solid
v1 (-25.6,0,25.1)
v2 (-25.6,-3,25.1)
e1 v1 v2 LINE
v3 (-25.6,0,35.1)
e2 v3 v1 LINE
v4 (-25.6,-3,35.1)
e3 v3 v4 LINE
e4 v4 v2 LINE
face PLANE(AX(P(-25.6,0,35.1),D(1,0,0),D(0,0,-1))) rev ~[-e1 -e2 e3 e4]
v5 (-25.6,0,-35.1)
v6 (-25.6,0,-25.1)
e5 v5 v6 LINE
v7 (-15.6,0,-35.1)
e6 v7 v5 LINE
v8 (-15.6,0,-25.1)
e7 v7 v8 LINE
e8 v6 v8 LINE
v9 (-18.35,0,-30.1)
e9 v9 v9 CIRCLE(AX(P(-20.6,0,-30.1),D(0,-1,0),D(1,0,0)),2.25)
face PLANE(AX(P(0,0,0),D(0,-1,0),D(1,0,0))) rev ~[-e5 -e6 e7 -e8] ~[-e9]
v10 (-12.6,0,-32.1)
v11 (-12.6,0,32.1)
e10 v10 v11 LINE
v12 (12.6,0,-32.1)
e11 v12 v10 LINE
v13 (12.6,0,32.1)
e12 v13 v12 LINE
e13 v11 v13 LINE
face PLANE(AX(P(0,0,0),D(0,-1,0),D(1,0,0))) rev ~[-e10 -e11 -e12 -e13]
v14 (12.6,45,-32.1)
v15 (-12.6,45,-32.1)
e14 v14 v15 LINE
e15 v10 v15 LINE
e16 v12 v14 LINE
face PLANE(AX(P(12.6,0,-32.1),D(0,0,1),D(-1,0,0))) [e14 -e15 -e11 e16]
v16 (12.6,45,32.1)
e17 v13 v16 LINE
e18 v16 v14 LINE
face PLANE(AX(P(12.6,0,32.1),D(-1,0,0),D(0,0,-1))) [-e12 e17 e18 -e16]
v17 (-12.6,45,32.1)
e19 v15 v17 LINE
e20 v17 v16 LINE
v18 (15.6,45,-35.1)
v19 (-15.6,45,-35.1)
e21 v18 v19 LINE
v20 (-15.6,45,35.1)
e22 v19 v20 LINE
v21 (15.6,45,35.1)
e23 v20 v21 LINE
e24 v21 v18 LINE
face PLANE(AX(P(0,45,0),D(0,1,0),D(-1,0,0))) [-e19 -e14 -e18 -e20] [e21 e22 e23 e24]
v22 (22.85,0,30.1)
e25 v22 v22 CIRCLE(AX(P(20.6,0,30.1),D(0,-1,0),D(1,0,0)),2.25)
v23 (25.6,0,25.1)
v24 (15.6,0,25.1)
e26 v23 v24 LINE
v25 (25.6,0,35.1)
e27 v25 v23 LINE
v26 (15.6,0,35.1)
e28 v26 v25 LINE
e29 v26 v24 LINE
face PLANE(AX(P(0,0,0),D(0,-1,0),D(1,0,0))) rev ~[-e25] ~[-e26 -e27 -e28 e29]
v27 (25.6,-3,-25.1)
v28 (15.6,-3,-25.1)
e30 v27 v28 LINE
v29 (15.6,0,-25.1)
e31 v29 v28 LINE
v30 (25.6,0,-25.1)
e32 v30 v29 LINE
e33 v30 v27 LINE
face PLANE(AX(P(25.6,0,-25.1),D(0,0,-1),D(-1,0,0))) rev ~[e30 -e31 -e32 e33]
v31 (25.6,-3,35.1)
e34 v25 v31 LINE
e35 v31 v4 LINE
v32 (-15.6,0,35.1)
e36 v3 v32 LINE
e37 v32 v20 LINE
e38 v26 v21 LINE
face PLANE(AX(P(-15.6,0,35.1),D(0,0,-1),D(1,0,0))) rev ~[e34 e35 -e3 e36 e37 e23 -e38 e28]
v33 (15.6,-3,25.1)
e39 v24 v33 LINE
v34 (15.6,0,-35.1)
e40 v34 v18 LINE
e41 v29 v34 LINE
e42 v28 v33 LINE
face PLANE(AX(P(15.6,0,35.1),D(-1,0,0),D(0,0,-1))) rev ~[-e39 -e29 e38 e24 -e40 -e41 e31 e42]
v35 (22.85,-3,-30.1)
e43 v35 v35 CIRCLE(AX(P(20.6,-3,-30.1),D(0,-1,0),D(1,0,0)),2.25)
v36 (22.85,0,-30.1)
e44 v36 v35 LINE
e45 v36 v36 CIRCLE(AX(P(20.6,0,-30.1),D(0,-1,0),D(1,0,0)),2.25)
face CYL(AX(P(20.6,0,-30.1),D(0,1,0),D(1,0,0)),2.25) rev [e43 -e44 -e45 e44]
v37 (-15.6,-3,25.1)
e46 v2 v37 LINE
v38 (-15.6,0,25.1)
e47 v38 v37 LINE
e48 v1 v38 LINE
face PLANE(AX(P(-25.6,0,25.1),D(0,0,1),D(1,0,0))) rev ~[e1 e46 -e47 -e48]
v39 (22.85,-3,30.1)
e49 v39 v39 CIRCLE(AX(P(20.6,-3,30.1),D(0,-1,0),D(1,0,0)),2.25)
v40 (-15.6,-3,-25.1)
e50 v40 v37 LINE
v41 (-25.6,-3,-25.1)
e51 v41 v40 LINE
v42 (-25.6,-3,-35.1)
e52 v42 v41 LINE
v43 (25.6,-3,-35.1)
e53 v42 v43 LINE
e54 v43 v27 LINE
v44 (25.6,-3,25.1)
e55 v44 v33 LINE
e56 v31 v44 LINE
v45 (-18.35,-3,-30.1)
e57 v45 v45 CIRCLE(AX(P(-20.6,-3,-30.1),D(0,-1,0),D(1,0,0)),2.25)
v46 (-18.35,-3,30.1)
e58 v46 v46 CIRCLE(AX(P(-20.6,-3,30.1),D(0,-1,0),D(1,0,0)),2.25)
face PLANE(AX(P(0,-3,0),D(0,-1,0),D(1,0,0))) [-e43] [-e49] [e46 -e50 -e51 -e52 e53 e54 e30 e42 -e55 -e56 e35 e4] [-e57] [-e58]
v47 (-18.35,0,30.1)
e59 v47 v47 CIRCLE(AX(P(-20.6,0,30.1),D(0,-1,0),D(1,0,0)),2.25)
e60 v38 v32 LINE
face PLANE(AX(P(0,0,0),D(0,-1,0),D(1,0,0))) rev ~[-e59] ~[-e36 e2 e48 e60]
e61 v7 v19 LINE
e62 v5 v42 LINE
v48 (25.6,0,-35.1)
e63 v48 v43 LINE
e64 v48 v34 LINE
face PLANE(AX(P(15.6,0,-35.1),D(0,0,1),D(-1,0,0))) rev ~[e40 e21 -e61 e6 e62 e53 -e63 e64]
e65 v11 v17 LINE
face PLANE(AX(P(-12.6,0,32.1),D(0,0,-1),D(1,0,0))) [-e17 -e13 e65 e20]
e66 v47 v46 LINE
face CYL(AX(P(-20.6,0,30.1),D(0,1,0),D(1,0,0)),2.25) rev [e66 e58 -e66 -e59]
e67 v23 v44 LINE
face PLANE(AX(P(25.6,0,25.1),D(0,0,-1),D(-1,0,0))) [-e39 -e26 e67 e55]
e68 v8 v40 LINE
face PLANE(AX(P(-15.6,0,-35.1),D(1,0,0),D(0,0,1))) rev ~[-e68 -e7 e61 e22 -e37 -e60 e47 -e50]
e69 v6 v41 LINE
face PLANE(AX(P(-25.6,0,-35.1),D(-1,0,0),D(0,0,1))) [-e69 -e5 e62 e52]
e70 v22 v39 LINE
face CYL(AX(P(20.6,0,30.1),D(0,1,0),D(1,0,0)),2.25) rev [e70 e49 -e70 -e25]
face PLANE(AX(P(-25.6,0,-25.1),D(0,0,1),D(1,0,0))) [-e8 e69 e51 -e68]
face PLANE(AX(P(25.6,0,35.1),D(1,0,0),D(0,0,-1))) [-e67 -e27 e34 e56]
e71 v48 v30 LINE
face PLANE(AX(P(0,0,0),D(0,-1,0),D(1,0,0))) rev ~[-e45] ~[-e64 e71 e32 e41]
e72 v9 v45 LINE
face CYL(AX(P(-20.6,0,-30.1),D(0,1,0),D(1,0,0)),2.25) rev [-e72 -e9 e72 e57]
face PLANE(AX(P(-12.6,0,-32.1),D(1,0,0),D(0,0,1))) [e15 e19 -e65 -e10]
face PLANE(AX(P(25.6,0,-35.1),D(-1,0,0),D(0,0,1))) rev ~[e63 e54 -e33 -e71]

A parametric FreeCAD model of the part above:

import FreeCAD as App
import Part
import Sketcher
Q = App.Units.Quantity

doc = App.newDocument("Part")
params = doc.addObject("Spreadsheet::Sheet", "Params")
for row, (alias, value) in enumerate([
    ("sketch1_width", "25.2 mm"),
    ("sketch1_height", "64.2 mm"),
    ("pad1_length", "45 mm"),
    ("sketch2_diameter", "4.5 mm"),
    ("sketch2_width", "10 mm"),
    ("sketch2_width2", "51.2 mm"),
    ("sketch2_height", "50.2 mm"),
    ("pad2_length", "3 mm"),
], start=1):
    params.set(f"A{row}", alias)
    params.set(f"B{row}", "=" + value)
    params.setAlias(f"B{row}", alias)

body = doc.addObject("PartDesign::Body", "Body")

sketch1 = body.newObject("Sketcher::SketchObject", "Sketch")
sketch1.AttachmentSupport = (doc.getObject("XZ_Plane"), [""])
sketch1.MapMode = "FlatFace"
sketch1.addGeometry(Part.LineSegment(App.Vector(-15.6, -35.1, 0), App.Vector(-15.6, 35.1, 0)), False)
sketch1.addGeometry(Part.LineSegment(App.Vector(-15.6, 35.1, 0), App.Vector(15.6, 35.1, 0)), False)
sketch1.addGeometry(Part.LineSegment(App.Vector(15.6, 35.1, 0), App.Vector(15.6, -35.1, 0)), False)
sketch1.addGeometry(Part.LineSegment(App.Vector(15.6, -35.1, 0), App.Vector(-15.6, -35.1, 0)), False)
sketch1.addGeometry(Part.LineSegment(App.Vector(12.6, 32.1, 0), App.Vector(-12.6, 32.1, 0)), False)
sketch1.addGeometry(Part.LineSegment(App.Vector(-12.6, 32.1, 0), App.Vector(-12.6, -32.1, 0)), False)
sketch1.addGeometry(Part.LineSegment(App.Vector(-12.6, -32.1, 0), App.Vector(12.6, -32.1, 0)), False)
sketch1.addGeometry(Part.LineSegment(App.Vector(12.6, -32.1, 0), App.Vector(12.6, 32.1, 0)), False)
sketch1.addConstraint(Sketcher.Constraint("Coincident", 0, 2, 1, 1))
sketch1.addConstraint(Sketcher.Constraint("Coincident", 1, 2, 2, 1))
sketch1.addConstraint(Sketcher.Constraint("Coincident", 2, 2, 3, 1))
sketch1.addConstraint(Sketcher.Constraint("Coincident", 3, 2, 0, 1))
sketch1.addConstraint(Sketcher.Constraint("Coincident", 4, 2, 5, 1))
sketch1.addConstraint(Sketcher.Constraint("Coincident", 5, 2, 6, 1))
sketch1.addConstraint(Sketcher.Constraint("Coincident", 6, 2, 7, 1))
sketch1.addConstraint(Sketcher.Constraint("Coincident", 7, 2, 4, 1))
sketch1.addConstraint(Sketcher.Constraint("Vertical", 0))
sketch1.addConstraint(Sketcher.Constraint("Horizontal", 1))
sketch1.addConstraint(Sketcher.Constraint("Vertical", 2))
sketch1.addConstraint(Sketcher.Constraint("Horizontal", 3))
sketch1.addConstraint(Sketcher.Constraint("Horizontal", 4))
sketch1.addConstraint(Sketcher.Constraint("Vertical", 5))
sketch1.addConstraint(Sketcher.Constraint("Horizontal", 6))
sketch1.addConstraint(Sketcher.Constraint("Vertical", 7))
sketch1.addConstraint(Sketcher.Constraint("Symmetric", 0, 2, 2, 2, -1, 1))
sketch1.addConstraint(Sketcher.Constraint("Symmetric", 4, 2, 6, 2, -1, 1))
sketch1.addConstraint(Sketcher.Constraint("DistanceX", 4, 2, 4, 1, Q("25.2 mm")))
sketch1.addConstraint(Sketcher.Constraint("DistanceY", 5, 2, 5, 1, Q("64.2 mm")))
sketch1.addConstraint(Sketcher.Constraint("DistanceX", 0, 2, 4, 2, Q("3 mm")))
sketch1.addConstraint(Sketcher.Constraint("DistanceY", 4, 2, 0, 2, Q("3 mm")))
sketch1.setExpression("Constraints[18]", "Params.sketch1_width")
sketch1.setExpression("Constraints[19]", "Params.sketch1_height")
pad1 = body.newObject("PartDesign::Pad", "Pad")
pad1.Profile = sketch1
pad1.setExpression("Length", "Params.pad1_length")
pad1.Reversed = True

sketch2 = body.newObject("Sketcher::SketchObject", "Sketch001")
sketch2.AttachmentSupport = (doc.getObject("XZ_Plane"), [""])
sketch2.MapMode = "FlatFace"
sketch2.addGeometry(Part.LineSegment(App.Vector(-25.6, 25.1, 0), App.Vector(-15.6, 25.1, 0)), False)
sketch2.addGeometry(Part.LineSegment(App.Vector(-15.6, 25.1, 0), App.Vector(-15.6, -25.1, 0)), False)
sketch2.addGeometry(Part.LineSegment(App.Vector(-15.6, -25.1, 0), App.Vector(-25.6, -25.1, 0)), False)
sketch2.addGeometry(Part.LineSegment(App.Vector(-25.6, -25.1, 0), App.Vector(-25.6, -35.1, 0)), False)
sketch2.addGeometry(Part.LineSegment(App.Vector(-25.6, -35.1, 0), App.Vector(25.6, -35.1, 0)), False)
sketch2.addGeometry(Part.LineSegment(App.Vector(25.6, -35.1, 0), App.Vector(25.6, -25.1, 0)), False)
sketch2.addGeometry(Part.LineSegment(App.Vector(25.6, -25.1, 0), App.Vector(15.6, -25.1, 0)), False)
sketch2.addGeometry(Part.LineSegment(App.Vector(15.6, -25.1, 0), App.Vector(15.6, 25.1, 0)), False)
sketch2.addGeometry(Part.LineSegment(App.Vector(15.6, 25.1, 0), App.Vector(25.6, 25.1, 0)), False)
sketch2.addGeometry(Part.LineSegment(App.Vector(25.6, 25.1, 0), App.Vector(25.6, 35.1, 0)), False)
sketch2.addGeometry(Part.LineSegment(App.Vector(25.6, 35.1, 0), App.Vector(-25.6, 35.1, 0)), False)
sketch2.addGeometry(Part.LineSegment(App.Vector(-25.6, 35.1, 0), App.Vector(-25.6, 25.1, 0)), False)
sketch2.addGeometry(Part.Circle(App.Vector(-20.6, 30.1, 0), App.Vector(0, 0, 1), 2.25), False)
sketch2.addGeometry(Part.Circle(App.Vector(20.6, 30.1, 0), App.Vector(0, 0, 1), 2.25), False)
sketch2.addGeometry(Part.Circle(App.Vector(20.6, -30.1, 0), App.Vector(0, 0, 1), 2.25), False)
sketch2.addGeometry(Part.Circle(App.Vector(-20.6, -30.1, 0), App.Vector(0, 0, 1), 2.25), False)
sketch2.addConstraint(Sketcher.Constraint("Coincident", 0, 2, 1, 1))
sketch2.addConstraint(Sketcher.Constraint("Coincident", 1, 2, 2, 1))
sketch2.addConstraint(Sketcher.Constraint("Coincident", 2, 2, 3, 1))
sketch2.addConstraint(Sketcher.Constraint("Coincident", 3, 2, 4, 1))
sketch2.addConstraint(Sketcher.Constraint("Coincident", 4, 2, 5, 1))
sketch2.addConstraint(Sketcher.Constraint("Coincident", 5, 2, 6, 1))
sketch2.addConstraint(Sketcher.Constraint("Coincident", 6, 2, 7, 1))
sketch2.addConstraint(Sketcher.Constraint("Coincident", 7, 2, 8, 1))
sketch2.addConstraint(Sketcher.Constraint("Coincident", 8, 2, 9, 1))
sketch2.addConstraint(Sketcher.Constraint("Coincident", 9, 2, 10, 1))
sketch2.addConstraint(Sketcher.Constraint("Coincident", 10, 2, 11, 1))
sketch2.addConstraint(Sketcher.Constraint("Coincident", 11, 2, 0, 1))
sketch2.addConstraint(Sketcher.Constraint("Horizontal", 0))
sketch2.addConstraint(Sketcher.Constraint("Vertical", 1))
sketch2.addConstraint(Sketcher.Constraint("Horizontal", 2))
sketch2.addConstraint(Sketcher.Constraint("Vertical", 3))
sketch2.addConstraint(Sketcher.Constraint("Horizontal", 4))
sketch2.addConstraint(Sketcher.Constraint("Vertical", 5))
sketch2.addConstraint(Sketcher.Constraint("Horizontal", 6))
sketch2.addConstraint(Sketcher.Constraint("Vertical", 7))
sketch2.addConstraint(Sketcher.Constraint("Horizontal", 8))
sketch2.addConstraint(Sketcher.Constraint("Vertical", 9))
sketch2.addConstraint(Sketcher.Constraint("Horizontal", 10))
sketch2.addConstraint(Sketcher.Constraint("Vertical", 11))
sketch2.addConstraint(Sketcher.Constraint("Equal", 12, 13))
sketch2.addConstraint(Sketcher.Constraint("Equal", 13, 14))
sketch2.addConstraint(Sketcher.Constraint("Equal", 14, 15))
sketch2.addConstraint(Sketcher.Constraint("Symmetric", 12, 3, 14, 3, -1, 1))
sketch2.addConstraint(Sketcher.Constraint("Symmetric", 13, 3, 15, 3, -1, 1))
sketch2.addConstraint(Sketcher.Constraint("Symmetric", 0, 2, 6, 2, -1, 1))
sketch2.addConstraint(Sketcher.Constraint("Symmetric", 2, 2, 8, 2, -1, 1))
sketch2.addConstraint(Sketcher.Constraint("Symmetric", 4, 2, 10, 2, -1, 1))
sketch2.addConstraint(Sketcher.Constraint("Symmetric", 12, 3, 13, 3, -2))
sketch2.addConstraint(Sketcher.Constraint("Symmetric", 2, 2, 5, 2, -2))
sketch2.addConstraint(Sketcher.Constraint("Equal", 8, 3))
sketch2.addConstraint(Sketcher.Constraint("Diameter", 12, Q("4.5 mm")))
sketch2.addConstraint(Sketcher.Constraint("DistanceX", 0, 1, 0, 2, Q("10 mm")))
sketch2.addConstraint(Sketcher.Constraint("DistanceX", 12, 3, 0, 2, Q("5 mm")))
sketch2.addConstraint(Sketcher.Constraint("DistanceY", 0, 2, 12, 3, Q("5 mm")))
sketch2.addConstraint(Sketcher.Constraint("DistanceX", 4, 1, 4, 2, Q("51.2 mm")))
sketch2.addConstraint(Sketcher.Constraint("DistanceY", 1, 2, 1, 1, Q("50.2 mm")))
sketch2.setExpression("Constraints[35]", "Params.sketch2_diameter")
sketch2.setExpression("Constraints[36]", "Params.sketch2_width")
sketch2.setExpression("Constraints[39]", "Params.sketch2_width2")
sketch2.setExpression("Constraints[40]", "Params.sketch2_height")
pad2 = body.newObject("PartDesign::Pad", "Pad001")
pad2.Profile = sketch2
pad2.setExpression("Length", "Params.pad2_length")

doc.recompute()
